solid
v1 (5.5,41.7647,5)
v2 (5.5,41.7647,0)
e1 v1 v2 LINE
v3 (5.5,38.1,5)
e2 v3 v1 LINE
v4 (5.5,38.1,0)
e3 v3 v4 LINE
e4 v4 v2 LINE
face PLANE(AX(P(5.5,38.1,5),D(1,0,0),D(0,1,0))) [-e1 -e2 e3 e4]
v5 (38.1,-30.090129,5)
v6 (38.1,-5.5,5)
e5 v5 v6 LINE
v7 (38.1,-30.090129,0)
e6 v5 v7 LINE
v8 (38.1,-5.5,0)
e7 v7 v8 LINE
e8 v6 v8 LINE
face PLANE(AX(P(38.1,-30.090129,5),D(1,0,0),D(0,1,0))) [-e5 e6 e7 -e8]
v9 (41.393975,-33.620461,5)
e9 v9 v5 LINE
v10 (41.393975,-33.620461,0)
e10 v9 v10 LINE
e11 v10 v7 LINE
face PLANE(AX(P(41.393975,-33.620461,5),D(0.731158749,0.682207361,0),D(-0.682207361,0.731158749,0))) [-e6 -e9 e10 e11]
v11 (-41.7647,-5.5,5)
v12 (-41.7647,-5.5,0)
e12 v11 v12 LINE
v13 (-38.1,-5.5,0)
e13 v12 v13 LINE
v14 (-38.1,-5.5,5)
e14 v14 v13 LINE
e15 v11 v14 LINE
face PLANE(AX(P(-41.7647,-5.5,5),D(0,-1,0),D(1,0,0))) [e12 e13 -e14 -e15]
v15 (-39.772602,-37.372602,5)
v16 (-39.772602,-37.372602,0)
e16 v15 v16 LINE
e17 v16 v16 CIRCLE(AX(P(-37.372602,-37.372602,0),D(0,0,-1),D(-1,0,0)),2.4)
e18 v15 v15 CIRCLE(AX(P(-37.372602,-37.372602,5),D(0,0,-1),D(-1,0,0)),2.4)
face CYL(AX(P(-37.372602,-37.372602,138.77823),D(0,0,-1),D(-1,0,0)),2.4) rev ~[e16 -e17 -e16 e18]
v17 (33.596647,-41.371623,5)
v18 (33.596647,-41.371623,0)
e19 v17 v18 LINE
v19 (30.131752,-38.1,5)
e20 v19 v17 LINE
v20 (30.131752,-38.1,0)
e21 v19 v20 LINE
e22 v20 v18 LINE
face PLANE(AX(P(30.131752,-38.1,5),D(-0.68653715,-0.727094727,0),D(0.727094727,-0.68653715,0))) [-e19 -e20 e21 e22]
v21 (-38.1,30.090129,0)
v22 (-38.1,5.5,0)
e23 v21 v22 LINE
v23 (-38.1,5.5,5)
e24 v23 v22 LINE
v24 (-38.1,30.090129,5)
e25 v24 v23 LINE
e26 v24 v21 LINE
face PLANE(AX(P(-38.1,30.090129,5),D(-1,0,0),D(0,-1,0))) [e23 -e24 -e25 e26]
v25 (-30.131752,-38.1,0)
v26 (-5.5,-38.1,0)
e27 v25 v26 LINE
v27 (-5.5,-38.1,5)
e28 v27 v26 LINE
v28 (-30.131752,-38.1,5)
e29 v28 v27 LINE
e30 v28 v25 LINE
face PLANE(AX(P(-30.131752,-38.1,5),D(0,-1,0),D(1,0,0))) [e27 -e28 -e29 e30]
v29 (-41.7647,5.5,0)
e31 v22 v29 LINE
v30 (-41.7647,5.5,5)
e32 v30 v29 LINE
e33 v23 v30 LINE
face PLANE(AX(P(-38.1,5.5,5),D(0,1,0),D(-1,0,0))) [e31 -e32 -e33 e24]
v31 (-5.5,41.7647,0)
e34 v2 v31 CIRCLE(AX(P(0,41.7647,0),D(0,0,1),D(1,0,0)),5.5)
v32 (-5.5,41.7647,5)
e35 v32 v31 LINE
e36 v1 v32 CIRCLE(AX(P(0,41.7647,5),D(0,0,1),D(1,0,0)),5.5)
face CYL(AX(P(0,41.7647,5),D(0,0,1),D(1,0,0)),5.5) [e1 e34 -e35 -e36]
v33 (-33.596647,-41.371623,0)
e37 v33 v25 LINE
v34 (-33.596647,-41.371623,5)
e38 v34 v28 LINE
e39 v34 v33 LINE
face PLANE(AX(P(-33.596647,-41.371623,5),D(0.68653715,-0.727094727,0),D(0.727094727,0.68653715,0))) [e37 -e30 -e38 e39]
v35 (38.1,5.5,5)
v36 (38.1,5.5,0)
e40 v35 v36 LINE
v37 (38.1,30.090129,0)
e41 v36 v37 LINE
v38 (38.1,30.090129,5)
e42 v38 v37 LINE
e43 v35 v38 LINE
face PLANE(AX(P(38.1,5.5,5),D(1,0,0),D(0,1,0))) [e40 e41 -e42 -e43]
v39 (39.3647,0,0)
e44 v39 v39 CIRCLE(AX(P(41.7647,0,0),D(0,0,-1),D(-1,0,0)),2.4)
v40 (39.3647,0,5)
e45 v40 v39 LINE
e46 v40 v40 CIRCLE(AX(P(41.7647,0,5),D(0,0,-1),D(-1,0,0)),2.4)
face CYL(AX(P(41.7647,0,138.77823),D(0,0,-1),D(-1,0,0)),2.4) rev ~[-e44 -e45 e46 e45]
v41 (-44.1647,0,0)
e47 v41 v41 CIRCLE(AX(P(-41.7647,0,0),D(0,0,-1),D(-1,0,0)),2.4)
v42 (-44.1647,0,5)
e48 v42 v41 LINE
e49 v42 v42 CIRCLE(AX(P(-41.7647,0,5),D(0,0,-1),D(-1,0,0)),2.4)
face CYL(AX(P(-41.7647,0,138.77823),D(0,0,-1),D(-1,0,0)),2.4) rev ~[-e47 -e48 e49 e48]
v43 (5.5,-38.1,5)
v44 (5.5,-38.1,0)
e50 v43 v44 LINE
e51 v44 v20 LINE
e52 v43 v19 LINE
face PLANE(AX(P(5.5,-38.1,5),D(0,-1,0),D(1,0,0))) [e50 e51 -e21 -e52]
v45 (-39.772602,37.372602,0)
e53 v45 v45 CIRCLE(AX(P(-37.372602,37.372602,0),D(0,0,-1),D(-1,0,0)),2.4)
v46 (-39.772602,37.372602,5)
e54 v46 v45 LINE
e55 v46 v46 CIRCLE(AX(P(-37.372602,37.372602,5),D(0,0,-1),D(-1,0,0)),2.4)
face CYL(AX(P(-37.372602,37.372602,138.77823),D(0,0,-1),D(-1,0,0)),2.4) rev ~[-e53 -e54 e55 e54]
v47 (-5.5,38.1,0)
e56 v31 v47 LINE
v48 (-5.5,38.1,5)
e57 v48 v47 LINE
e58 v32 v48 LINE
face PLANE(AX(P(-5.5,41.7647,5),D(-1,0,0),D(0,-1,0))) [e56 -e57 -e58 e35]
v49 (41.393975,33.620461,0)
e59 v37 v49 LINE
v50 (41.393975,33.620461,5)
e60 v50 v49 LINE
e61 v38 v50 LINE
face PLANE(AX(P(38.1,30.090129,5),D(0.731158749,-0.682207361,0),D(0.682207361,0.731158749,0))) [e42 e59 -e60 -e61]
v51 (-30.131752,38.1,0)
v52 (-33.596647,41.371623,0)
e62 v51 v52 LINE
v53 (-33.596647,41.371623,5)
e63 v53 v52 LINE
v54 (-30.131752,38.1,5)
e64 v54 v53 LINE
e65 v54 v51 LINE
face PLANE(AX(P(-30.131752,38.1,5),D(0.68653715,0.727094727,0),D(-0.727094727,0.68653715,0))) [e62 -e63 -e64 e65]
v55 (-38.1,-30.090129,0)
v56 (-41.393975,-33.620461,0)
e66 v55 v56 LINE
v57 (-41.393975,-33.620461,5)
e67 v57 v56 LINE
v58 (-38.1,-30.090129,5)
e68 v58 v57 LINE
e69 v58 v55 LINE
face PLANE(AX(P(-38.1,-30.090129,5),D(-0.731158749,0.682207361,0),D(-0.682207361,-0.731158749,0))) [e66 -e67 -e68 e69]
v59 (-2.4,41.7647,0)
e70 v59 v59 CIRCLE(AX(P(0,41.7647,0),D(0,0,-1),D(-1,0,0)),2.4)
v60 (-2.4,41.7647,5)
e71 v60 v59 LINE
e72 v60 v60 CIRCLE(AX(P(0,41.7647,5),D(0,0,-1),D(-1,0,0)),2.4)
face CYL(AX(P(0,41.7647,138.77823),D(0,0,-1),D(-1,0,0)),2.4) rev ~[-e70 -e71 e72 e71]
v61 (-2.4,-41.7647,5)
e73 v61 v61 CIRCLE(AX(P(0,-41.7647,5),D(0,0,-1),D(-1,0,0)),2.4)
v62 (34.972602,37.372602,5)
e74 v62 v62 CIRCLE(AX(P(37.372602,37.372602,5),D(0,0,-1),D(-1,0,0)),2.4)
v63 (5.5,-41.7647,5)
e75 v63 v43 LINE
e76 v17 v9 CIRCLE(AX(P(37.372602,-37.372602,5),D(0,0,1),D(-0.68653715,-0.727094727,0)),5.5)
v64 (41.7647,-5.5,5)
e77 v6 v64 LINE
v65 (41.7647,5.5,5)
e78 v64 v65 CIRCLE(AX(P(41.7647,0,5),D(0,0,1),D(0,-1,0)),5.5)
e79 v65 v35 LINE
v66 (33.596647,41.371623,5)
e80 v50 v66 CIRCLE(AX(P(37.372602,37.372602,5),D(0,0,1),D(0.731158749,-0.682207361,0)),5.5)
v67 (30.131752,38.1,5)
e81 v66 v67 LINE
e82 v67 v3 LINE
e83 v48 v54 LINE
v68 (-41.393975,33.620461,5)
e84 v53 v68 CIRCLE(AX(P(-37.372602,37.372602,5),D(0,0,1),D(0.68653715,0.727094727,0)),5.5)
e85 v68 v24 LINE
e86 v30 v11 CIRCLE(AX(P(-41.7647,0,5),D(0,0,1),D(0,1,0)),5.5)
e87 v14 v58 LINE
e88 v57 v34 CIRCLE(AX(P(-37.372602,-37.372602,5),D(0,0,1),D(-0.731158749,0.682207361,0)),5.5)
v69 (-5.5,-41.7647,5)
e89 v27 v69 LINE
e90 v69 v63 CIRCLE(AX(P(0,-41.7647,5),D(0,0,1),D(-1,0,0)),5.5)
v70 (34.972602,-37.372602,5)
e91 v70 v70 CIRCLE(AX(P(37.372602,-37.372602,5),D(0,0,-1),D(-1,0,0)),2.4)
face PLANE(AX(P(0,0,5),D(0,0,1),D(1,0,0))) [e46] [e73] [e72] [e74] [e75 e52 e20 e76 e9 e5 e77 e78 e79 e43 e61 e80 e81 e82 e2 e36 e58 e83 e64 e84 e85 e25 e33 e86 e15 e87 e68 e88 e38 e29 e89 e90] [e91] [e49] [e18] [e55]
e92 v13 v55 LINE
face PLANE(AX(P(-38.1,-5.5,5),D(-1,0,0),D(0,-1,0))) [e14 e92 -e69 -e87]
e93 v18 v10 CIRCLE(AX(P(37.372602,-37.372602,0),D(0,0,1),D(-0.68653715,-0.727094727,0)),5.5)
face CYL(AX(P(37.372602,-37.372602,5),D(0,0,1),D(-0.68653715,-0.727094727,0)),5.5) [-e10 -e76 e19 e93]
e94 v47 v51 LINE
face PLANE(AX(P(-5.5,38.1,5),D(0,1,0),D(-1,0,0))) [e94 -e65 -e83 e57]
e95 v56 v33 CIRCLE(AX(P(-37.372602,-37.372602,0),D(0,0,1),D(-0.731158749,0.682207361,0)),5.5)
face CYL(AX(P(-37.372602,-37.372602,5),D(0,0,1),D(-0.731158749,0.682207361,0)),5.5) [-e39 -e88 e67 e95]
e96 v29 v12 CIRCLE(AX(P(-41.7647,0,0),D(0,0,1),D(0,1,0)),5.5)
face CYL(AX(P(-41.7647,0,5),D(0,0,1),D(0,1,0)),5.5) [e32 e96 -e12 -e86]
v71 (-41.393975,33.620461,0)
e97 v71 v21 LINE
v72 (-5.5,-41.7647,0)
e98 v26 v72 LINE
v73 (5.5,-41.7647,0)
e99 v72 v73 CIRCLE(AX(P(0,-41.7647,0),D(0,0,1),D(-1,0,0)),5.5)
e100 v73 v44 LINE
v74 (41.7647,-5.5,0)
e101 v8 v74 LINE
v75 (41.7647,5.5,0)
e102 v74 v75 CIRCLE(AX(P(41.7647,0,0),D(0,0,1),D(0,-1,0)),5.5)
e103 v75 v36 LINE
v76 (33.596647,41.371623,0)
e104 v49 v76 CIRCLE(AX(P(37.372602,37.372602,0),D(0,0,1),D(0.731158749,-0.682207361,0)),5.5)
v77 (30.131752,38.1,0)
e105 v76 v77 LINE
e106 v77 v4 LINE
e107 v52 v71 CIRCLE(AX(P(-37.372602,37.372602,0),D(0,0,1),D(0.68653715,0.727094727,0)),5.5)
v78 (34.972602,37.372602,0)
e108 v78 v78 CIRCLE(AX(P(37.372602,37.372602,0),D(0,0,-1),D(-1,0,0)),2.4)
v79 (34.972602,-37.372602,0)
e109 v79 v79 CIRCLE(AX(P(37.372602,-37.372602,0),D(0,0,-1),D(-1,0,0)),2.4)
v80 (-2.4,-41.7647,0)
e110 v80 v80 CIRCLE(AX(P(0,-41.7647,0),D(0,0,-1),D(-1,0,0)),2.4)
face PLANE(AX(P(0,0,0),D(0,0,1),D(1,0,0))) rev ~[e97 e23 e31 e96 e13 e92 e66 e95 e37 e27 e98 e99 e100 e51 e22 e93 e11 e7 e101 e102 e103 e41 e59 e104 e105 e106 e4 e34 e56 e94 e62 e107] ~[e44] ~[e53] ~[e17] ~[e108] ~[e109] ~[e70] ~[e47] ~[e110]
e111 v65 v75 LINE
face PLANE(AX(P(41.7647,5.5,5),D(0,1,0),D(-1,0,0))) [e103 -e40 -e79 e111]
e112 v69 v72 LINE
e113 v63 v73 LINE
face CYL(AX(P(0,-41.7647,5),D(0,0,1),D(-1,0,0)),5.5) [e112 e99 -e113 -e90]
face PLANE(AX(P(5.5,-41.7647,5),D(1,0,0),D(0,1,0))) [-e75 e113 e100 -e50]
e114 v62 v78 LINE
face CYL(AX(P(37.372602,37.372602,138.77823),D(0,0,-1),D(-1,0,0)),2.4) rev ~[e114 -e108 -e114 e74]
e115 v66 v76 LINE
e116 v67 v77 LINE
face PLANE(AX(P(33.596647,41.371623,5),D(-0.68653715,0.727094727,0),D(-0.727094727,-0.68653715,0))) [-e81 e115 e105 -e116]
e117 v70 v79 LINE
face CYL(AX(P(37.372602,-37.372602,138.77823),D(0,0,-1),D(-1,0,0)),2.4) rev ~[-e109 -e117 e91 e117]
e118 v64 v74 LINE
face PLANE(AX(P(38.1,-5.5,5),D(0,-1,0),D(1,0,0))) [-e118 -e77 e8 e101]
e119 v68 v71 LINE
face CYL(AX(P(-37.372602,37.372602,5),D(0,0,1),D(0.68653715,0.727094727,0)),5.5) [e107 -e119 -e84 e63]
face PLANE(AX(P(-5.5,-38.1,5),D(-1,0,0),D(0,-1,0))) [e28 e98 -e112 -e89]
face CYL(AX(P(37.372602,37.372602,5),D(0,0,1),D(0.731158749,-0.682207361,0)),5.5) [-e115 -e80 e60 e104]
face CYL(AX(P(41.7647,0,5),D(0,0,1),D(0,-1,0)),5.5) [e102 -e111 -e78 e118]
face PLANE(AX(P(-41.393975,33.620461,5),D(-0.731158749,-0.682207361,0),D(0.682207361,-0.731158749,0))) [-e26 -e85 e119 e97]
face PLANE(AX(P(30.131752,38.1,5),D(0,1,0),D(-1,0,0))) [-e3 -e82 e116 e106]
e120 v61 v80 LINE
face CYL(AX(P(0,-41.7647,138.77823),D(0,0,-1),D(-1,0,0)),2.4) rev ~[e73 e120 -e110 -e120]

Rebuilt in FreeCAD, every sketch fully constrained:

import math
import FreeCAD as App
import Part
import Sketcher

V = App.Vector


def edges_at(feature, points):
    """Names of the edges that pass closest to the given points."""
    edges = feature.Shape.Edges
    near = lambda p: min(range(len(edges)), key=lambda i: edges[i].distToShape(Part.Vertex(*p))[0])
    return sorted({f"Edge{near(p) + 1}" for p in points})


def add_polygon(sketch, points):
    """Adds a closed chain of lines whose ends are joined by coincident constraints."""
    first, n = sketch.GeometryCount, len(points)
    for a, b in zip(points, points[1:] + points[:1]):
        sketch.addGeometry(Part.LineSegment(App.Vector(*a, 0), App.Vector(*b, 0)), False)
    for i in range(n):
        sketch.addConstraint(Sketcher.Constraint("Coincident", first + i, 2, first + (i + 1) % n, 1))

doc = App.newDocument("Part")
body = doc.addObject("PartDesign::Body", "Body")

# Sketch on XY plane
sketch1 = doc.addObject("Sketcher::SketchObject", "Sketch")
body.addObject(sketch1)
sketch1.AttachmentSupport = (doc.XY_Plane, [""])
sketch1.MapMode = "FlatFace"
add_polygon(sketch1, [(-38, 38), (-38, -38), (38, -38), (38, 38)])  # lines 0-3
sketch1.addConstraint(Sketcher.Constraint("Vertical", 0))
sketch1.addConstraint(Sketcher.Constraint("Horizontal", 1))
sketch1.addConstraint(Sketcher.Constraint("Vertical", 2))
sketch1.addConstraint(Sketcher.Constraint("Horizontal", 3))
sketch1.addConstraint(Sketcher.Constraint("Symmetric", 0, 2, 2, 2, -1, 1))
sketch1.addConstraint(Sketcher.Constraint("Equal", 3, 0))
sketch1.addConstraint(Sketcher.Constraint("DistanceX", 1, 1, 1, 2, 76.2))
pad1 = doc.addObject("PartDesign::Pad", "Pad")
body.addObject(pad1)
pad1.Profile = sketch1
pad1.Length = 5
doc.recompute()

fillet = doc.addObject("PartDesign::Fillet", "Fillet")
body.addObject(fillet)
fillet.Base = (pad1, edges_at(pad1, [
    (38.1, -38.1, 2.5),
    (-38.1, -38.1, 2.5),
    (-38.1, 38.1, 2.5),
    (38.1, 38.1, 2.5),
]))
fillet.Radius = 5.334

# Sketch on XY plane
sketch2 = doc.addObject("Sketcher::SketchObject", "Sketch001")
body.addObject(sketch2)
sketch2.AttachmentSupport = (doc.XY_Plane, [""])
sketch2.MapMode = "FlatFace"
sketch2.AttachmentOffset = App.Placement(V(0, 0, 5), App.Rotation())
sketch2.addGeometry(Part.LineSegment(V(-38.1, -30.1, 0), V(-41.4, -33.6, 0)), False)
sketch2.addGeometry(Part.ArcOfCircle(Part.Circle(V(-37.4, -37.4, 0), V(0, 0, 1), 5.5), math.radians(137), math.radians(313)), False)
sketch2.addGeometry(Part.LineSegment(V(-33.6, -41.4, 0), V(-30.1, -38.1, 0)), False)
sketch2.addGeometry(Part.LineSegment(V(-30.1, -38.1, 0), V(-5.5, -38.1, 0)), False)
sketch2.addGeometry(Part.LineSegment(V(-5.5, -38.1, 0), V(-5.5, -41.8, 0)), False)
sketch2.addGeometry(Part.ArcOfCircle(Part.Circle(V(0, -41.8, 0), V(0, 0, 1), 5.5), math.radians(180), math.radians(360)), False)
sketch2.addGeometry(Part.LineSegment(V(5.5, -41.8, 0), V(5.5, -38.1, 0)), False)
sketch2.addGeometry(Part.LineSegment(V(5.5, -38.1, 0), V(30.1, -38.1, 0)), False)
sketch2.addGeometry(Part.LineSegment(V(30.1, -38.1, 0), V(33.6, -41.4, 0)), False)
sketch2.addGeometry(Part.ArcOfCircle(Part.Circle(V(37.4, -37.4, 0), V(0, 0, 1), 5.5), math.radians(-133), math.radians(43)), False)
sketch2.addGeometry(Part.LineSegment(V(41.4, -33.6, 0), V(38.1, -30.1, 0)), False)
sketch2.addGeometry(Part.LineSegment(V(38.1, -30.1, 0), V(38.1, -5.5, 0)), False)
sketch2.addGeometry(Part.LineSegment(V(38.1, -5.5, 0), V(41.8, -5.5, 0)), False)
sketch2.addGeometry(Part.ArcOfCircle(Part.Circle(V(41.8, 0, 0), V(0, 0, 1), 5.5), math.radians(-90), math.radians(90)), False)
sketch2.addGeometry(Part.LineSegment(V(41.8, 5.5, 0), V(38.1, 5.5, 0)), False)
sketch2.addGeometry(Part.LineSegment(V(38.1, 5.5, 0), V(38.1, 30.1, 0)), False)
sketch2.addGeometry(Part.LineSegment(V(38.1, 30.1, 0), V(41.4, 33.6, 0)), False)
sketch2.addGeometry(Part.ArcOfCircle(Part.Circle(V(37.4, 37.4, 0), V(0, 0, 1), 5.5), math.radians(-43), math.radians(133)), False)
sketch2.addGeometry(Part.LineSegment(V(33.6, 41.4, 0), V(30.1, 38.1, 0)), False)
sketch2.addGeometry(Part.LineSegment(V(30.1, 38.1, 0), V(5.5, 38.1, 0)), False)
sketch2.addGeometry(Part.LineSegment(V(5.5, 38.1, 0), V(5.5, 41.8, 0)), False)
sketch2.addGeometry(Part.ArcOfCircle(Part.Circle(V(0, 41.8, 0), V(0, 0, 1), 5.5), math.radians(0), math.radians(180)), False)
sketch2.addGeometry(Part.LineSegment(V(-5.5, 41.8, 0), V(-5.5, 38.1, 0)), False)
sketch2.addGeometry(Part.LineSegment(V(-5.5, 38.1, 0), V(-30.1, 38.1, 0)), False)
sketch2.addGeometry(Part.LineSegment(V(-30.1, 38.1, 0), V(-33.6, 41.4, 0)), False)
sketch2.addGeometry(Part.ArcOfCircle(Part.Circle(V(-37.4, 37.4, 0), V(0, 0, 1), 5.5), math.radians(47), math.radians(223)), False)
sketch2.addGeometry(Part.LineSegment(V(-41.4, 33.6, 0), V(-38.1, 30.1, 0)), False)
sketch2.addGeometry(Part.LineSegment(V(-38.1, 30.1, 0), V(-38.1, 5.5, 0)), False)
sketch2.addGeometry(Part.LineSegment(V(-38.1, 5.5, 0), V(-41.8, 5.5, 0)), False)
sketch2.addGeometry(Part.ArcOfCircle(Part.Circle(V(-41.8, 0, 0), V(0, 0, 1), 5.5), math.radians(90), math.radians(270)), False)
sketch2.addGeometry(Part.LineSegment(V(-41.8, -5.5, 0), V(-38.1, -5.5, 0)), False)
sketch2.addGeometry(Part.LineSegment(V(-38.1, -5.5, 0), V(-38.1, -30.1, 0)), False)
sketch2.addConstraint(Sketcher.Constraint("Tangent", 0, 2, 1, 1))
sketch2.addConstraint(Sketcher.Constraint("Tangent", 1, 2, 2, 1))
sketch2.addConstraint(Sketcher.Constraint("Coincident", 2, 2, 3, 1))
sketch2.addConstraint(Sketcher.Constraint("Coincident", 3, 2, 4, 1))
sketch2.addConstraint(Sketcher.Constraint("Tangent", 4, 2, 5, 1))
sketch2.addConstraint(Sketcher.Constraint("Tangent", 5, 2, 6, 1))
sketch2.addConstraint(Sketcher.Constraint("Coincident", 6, 2, 7, 1))
sketch2.addConstraint(Sketcher.Constraint("Coincident", 7, 2, 8, 1))
sketch2.addConstraint(Sketcher.Constraint("Tangent", 8, 2, 9, 1))
sketch2.addConstraint(Sketcher.Constraint("Tangent", 9, 2, 10, 1))
sketch2.addConstraint(Sketcher.Constraint("Coincident", 10, 2, 11, 1))
sketch2.addConstraint(Sketcher.Constraint("Coincident", 11, 2, 12, 1))
sketch2.addConstraint(Sketcher.Constraint("Tangent", 12, 2, 13, 1))
sketch2.addConstraint(Sketcher.Constraint("Tangent", 13, 2, 14, 1))
sketch2.addConstraint(Sketcher.Constraint("Coincident", 14, 2, 15, 1))
sketch2.addConstraint(Sketcher.Constraint("Coincident", 15, 2, 16, 1))
sketch2.addConstraint(Sketcher.Constraint("Tangent", 16, 2, 17, 1))
sketch2.addConstraint(Sketcher.Constraint("Tangent", 17, 2, 18, 1))
sketch2.addConstraint(Sketcher.Constraint("Coincident", 18, 2, 19, 1))
sketch2.addConstraint(Sketcher.Constraint("Coincident", 19, 2, 20, 1))
sketch2.addConstraint(Sketcher.Constraint("Tangent", 20, 2, 21, 1))
sketch2.addConstraint(Sketcher.Constraint("Tangent", 21, 2, 22, 1))
sketch2.addConstraint(Sketcher.Constraint("Coincident", 22, 2, 23, 1))
sketch2.addConstraint(Sketcher.Constraint("Coincident", 23, 2, 24, 1))
sketch2.addConstraint(Sketcher.Constraint("Tangent", 24, 2, 25, 1))
sketch2.addConstraint(Sketcher.Constraint("Tangent", 25, 2, 26, 1))
sketch2.addConstraint(Sketcher.Constraint("Coincident", 26, 2, 27, 1))
sketch2.addConstraint(Sketcher.Constraint("Coincident", 27, 2, 28, 1))
sketch2.addConstraint(Sketcher.Constraint("Tangent", 28, 2, 29, 1))
sketch2.addConstraint(Sketcher.Constraint("Tangent", 29, 2, 30, 1))
sketch2.addConstraint(Sketcher.Constraint("Coincident", 30, 2, 31, 1))
sketch2.addConstraint(Sketcher.Constraint("Coincident", 31, 2, 0, 1))
sketch2.addConstraint(Sketcher.Constraint("Horizontal", 3))
sketch2.addConstraint(Sketcher.Constraint("Vertical", 4))
sketch2.addConstraint(Sketcher.Constraint("Vertical", 6))
sketch2.addConstraint(Sketcher.Constraint("Horizontal", 7))
sketch2.addConstraint(Sketcher.Constraint("Vertical", 11))
sketch2.addConstraint(Sketcher.Constraint("Horizontal", 12))
sketch2.addConstraint(Sketcher.Constraint("Horizontal", 14))
sketch2.addConstraint(Sketcher.Constraint("Vertical", 15))
sketch2.addConstraint(Sketcher.Constraint("Horizontal", 19))
sketch2.addConstraint(Sketcher.Constraint("Vertical", 20))
sketch2.addConstraint(Sketcher.Constraint("Vertical", 22))
sketch2.addConstraint(Sketcher.Constraint("Horizontal", 23))
sketch2.addConstraint(Sketcher.Constraint("Vertical", 27))
sketch2.addConstraint(Sketcher.Constraint("Horizontal", 28))
sketch2.addConstraint(Sketcher.Constraint("Horizontal", 30))
sketch2.addConstraint(Sketcher.Constraint("Vertical", 31))
sketch2.addConstraint(Sketcher.Constraint("Equal", 1, 5))
sketch2.addConstraint(Sketcher.Constraint("Equal", 5, 9))
sketch2.addConstraint(Sketcher.Constraint("Equal", 9, 13))
sketch2.addConstraint(Sketcher.Constraint("Equal", 13, 17))
sketch2.addConstraint(Sketcher.Constraint("Equal", 17, 21))
sketch2.addConstraint(Sketcher.Constraint("Equal", 21, 25))
sketch2.addConstraint(Sketcher.Constraint("Equal", 25, 29))
sketch2.addConstraint(Sketcher.Constraint("Symmetric", 1, 3, 17, 3, -1, 1))
sketch2.addConstraint(Sketcher.Constraint("Symmetric", 5, 3, 21, 3, -1, 1))
sketch2.addConstraint(Sketcher.Constraint("Symmetric", 9, 3, 25, 3, -1, 1))
sketch2.addConstraint(Sketcher.Constraint("Symmetric", 13, 3, 29, 3, -1, 1))
sketch2.addConstraint(Sketcher.Constraint("Symmetric", 2, 2, 18, 2, -1, 1))
sketch2.addConstraint(Sketcher.Constraint("Symmetric", 7, 2, 23, 2, -1, 1))
sketch2.addConstraint(Sketcher.Constraint("Symmetric", 10, 2, 26, 2, -1, 1))
sketch2.addConstraint(Sketcher.Constraint("Symmetric", 15, 2, 31, 2, -1, 1))
sketch2.addConstraint(Sketcher.Constraint("Symmetric", 1, 3, 9, 3, -2))
sketch2.addConstraint(Sketcher.Constraint("Symmetric", 3, 2, 6, 2, -2))
sketch2.addConstraint(Sketcher.Constraint("Symmetric", 15, 2, 26, 2, -2))
sketch2.addConstraint(Sketcher.Constraint("PointOnObject", 13, 3, -1))
sketch2.addConstraint(Sketcher.Constraint("Horizontal", 1, 2, 8, 2))
sketch2.addConstraint(Sketcher.Constraint("Equal", 30, 4))
sketch2.addConstraint(Sketcher.Constraint("Radius", 1, 5.5))
sketch2.addConstraint(Sketcher.Constraint("DistanceY", 2, 2, -1, 1, 38.1))
sketch2.addConstraint(Sketcher.Constraint("DistanceX", -1, 1, 10, 2, 38.1))
sketch2.addConstraint(Sketcher.Constraint("DistanceX", 12, 1, 12, 2, 3.6647))
sketch2.addConstraint(Sketcher.Constraint("DistanceX", 3, 1, 3, 2, 24.631752))
sketch2.addConstraint(Sketcher.Constraint("DistanceY", 11, 1, 11, 2, 24.590129))
sketch2.addConstraint(Sketcher.Constraint("DistanceX", 1, 3, -1, 1, 37.372602))
sketch2.addConstraint(Sketcher.Constraint("DistanceY", 1, 3, -1, 1, 37.372602))
pad2 = doc.addObject("PartDesign::Pad", "Pad001")
body.addObject(pad2)
pad2.Profile = sketch2
pad2.Length = 5
pad2.Reversed = True

# Sketch on XY plane
sketch3 = doc.addObject("Sketcher::SketchObject", "Sketch002")
body.addObject(sketch3)
sketch3.AttachmentSupport = (doc.XY_Plane, [""])
sketch3.MapMode = "FlatFace"
sketch3.AttachmentOffset = App.Placement(V(0, 0, 5), App.Rotation())
sketch3.addGeometry(Part.Circle(V(0, -41.8, 0), V(0, 0, 1), 2.4), False)
sketch3.addGeometry(Part.Circle(V(37.4, -37.4, 0), V(0, 0, 1), 2.4), False)
sketch3.addGeometry(Part.Circle(V(-37.4, -37.4, 0), V(0, 0, 1), 2.4), False)
sketch3.addGeometry(Part.Circle(V(-41.8, 0, 0), V(0, 0, 1), 2.4), False)
sketch3.addGeometry(Part.Circle(V(41.8, 0, 0), V(0, 0, 1), 2.4), False)
sketch3.addGeometry(Part.Circle(V(37.4, 37.4, 0), V(0, 0, 1), 2.4), False)
sketch3.addGeometry(Part.Circle(V(0, 41.8, 0), V(0, 0, 1), 2.4), False)
sketch3.addGeometry(Part.Circle(V(-37.4, 37.4, 0), V(0, 0, 1), 2.4), False)
sketch3.addConstraint(Sketcher.Constraint("Equal", 0, 1))
sketch3.addConstraint(Sketcher.Constraint("Equal", 1, 2))
sketch3.addConstraint(Sketcher.Constraint("Equal", 2, 3))
sketch3.addConstraint(Sketcher.Constraint("Equal", 3, 4))
sketch3.addConstraint(Sketcher.Constraint("Equal", 4, 5))
sketch3.addConstraint(Sketcher.Constraint("Equal", 5, 6))
sketch3.addConstraint(Sketcher.Constraint("Equal", 6, 7))
sketch3.addConstraint(Sketcher.Constraint("Symmetric", 3, 3, 4, 3, -1, 1))
sketch3.addConstraint(Sketcher.Constraint("Symmetric", 2, 3, 5, 3, -1, 1))
sketch3.addConstraint(Sketcher.Constraint("Symmetric", 0, 3, 6, 3, -1, 1))
sketch3.addConstraint(Sketcher.Constraint("Symmetric", 1, 3, 7, 3, -1, 1))
sketch3.addConstraint(Sketcher.Constraint("Symmetric", 1, 3, 2, 3, -2))
sketch3.addConstraint(Sketcher.Constraint("PointOnObject", 0, 3, -2))
sketch3.addConstraint(Sketcher.Constraint("PointOnObject", 3, 3, -1))
sketch3.addConstraint(Sketcher.Constraint("Diameter", 0, 4.8))
sketch3.addConstraint(Sketcher.Constraint("DistanceY", 0, 3, -1, 1, 41.7647))
sketch3.addConstraint(Sketcher.Constraint("DistanceX", -1, 1, 1, 3, 37.372602))
sketch3.addConstraint(Sketcher.Constraint("DistanceY", 1, 3, -1, 1, 37.372602))
sketch3.addConstraint(Sketcher.Constraint("DistanceX", 3, 3, -1, 1, 41.7647))
doc.recompute()
hole = doc.addObject("PartDesign::Hole", "Hole")
body.addObject(hole)
hole.Profile = sketch3
hole.ThreadType = "None"
hole.Diameter = 4.8
hole.DepthType = "ThroughAll"

doc.recompute()
